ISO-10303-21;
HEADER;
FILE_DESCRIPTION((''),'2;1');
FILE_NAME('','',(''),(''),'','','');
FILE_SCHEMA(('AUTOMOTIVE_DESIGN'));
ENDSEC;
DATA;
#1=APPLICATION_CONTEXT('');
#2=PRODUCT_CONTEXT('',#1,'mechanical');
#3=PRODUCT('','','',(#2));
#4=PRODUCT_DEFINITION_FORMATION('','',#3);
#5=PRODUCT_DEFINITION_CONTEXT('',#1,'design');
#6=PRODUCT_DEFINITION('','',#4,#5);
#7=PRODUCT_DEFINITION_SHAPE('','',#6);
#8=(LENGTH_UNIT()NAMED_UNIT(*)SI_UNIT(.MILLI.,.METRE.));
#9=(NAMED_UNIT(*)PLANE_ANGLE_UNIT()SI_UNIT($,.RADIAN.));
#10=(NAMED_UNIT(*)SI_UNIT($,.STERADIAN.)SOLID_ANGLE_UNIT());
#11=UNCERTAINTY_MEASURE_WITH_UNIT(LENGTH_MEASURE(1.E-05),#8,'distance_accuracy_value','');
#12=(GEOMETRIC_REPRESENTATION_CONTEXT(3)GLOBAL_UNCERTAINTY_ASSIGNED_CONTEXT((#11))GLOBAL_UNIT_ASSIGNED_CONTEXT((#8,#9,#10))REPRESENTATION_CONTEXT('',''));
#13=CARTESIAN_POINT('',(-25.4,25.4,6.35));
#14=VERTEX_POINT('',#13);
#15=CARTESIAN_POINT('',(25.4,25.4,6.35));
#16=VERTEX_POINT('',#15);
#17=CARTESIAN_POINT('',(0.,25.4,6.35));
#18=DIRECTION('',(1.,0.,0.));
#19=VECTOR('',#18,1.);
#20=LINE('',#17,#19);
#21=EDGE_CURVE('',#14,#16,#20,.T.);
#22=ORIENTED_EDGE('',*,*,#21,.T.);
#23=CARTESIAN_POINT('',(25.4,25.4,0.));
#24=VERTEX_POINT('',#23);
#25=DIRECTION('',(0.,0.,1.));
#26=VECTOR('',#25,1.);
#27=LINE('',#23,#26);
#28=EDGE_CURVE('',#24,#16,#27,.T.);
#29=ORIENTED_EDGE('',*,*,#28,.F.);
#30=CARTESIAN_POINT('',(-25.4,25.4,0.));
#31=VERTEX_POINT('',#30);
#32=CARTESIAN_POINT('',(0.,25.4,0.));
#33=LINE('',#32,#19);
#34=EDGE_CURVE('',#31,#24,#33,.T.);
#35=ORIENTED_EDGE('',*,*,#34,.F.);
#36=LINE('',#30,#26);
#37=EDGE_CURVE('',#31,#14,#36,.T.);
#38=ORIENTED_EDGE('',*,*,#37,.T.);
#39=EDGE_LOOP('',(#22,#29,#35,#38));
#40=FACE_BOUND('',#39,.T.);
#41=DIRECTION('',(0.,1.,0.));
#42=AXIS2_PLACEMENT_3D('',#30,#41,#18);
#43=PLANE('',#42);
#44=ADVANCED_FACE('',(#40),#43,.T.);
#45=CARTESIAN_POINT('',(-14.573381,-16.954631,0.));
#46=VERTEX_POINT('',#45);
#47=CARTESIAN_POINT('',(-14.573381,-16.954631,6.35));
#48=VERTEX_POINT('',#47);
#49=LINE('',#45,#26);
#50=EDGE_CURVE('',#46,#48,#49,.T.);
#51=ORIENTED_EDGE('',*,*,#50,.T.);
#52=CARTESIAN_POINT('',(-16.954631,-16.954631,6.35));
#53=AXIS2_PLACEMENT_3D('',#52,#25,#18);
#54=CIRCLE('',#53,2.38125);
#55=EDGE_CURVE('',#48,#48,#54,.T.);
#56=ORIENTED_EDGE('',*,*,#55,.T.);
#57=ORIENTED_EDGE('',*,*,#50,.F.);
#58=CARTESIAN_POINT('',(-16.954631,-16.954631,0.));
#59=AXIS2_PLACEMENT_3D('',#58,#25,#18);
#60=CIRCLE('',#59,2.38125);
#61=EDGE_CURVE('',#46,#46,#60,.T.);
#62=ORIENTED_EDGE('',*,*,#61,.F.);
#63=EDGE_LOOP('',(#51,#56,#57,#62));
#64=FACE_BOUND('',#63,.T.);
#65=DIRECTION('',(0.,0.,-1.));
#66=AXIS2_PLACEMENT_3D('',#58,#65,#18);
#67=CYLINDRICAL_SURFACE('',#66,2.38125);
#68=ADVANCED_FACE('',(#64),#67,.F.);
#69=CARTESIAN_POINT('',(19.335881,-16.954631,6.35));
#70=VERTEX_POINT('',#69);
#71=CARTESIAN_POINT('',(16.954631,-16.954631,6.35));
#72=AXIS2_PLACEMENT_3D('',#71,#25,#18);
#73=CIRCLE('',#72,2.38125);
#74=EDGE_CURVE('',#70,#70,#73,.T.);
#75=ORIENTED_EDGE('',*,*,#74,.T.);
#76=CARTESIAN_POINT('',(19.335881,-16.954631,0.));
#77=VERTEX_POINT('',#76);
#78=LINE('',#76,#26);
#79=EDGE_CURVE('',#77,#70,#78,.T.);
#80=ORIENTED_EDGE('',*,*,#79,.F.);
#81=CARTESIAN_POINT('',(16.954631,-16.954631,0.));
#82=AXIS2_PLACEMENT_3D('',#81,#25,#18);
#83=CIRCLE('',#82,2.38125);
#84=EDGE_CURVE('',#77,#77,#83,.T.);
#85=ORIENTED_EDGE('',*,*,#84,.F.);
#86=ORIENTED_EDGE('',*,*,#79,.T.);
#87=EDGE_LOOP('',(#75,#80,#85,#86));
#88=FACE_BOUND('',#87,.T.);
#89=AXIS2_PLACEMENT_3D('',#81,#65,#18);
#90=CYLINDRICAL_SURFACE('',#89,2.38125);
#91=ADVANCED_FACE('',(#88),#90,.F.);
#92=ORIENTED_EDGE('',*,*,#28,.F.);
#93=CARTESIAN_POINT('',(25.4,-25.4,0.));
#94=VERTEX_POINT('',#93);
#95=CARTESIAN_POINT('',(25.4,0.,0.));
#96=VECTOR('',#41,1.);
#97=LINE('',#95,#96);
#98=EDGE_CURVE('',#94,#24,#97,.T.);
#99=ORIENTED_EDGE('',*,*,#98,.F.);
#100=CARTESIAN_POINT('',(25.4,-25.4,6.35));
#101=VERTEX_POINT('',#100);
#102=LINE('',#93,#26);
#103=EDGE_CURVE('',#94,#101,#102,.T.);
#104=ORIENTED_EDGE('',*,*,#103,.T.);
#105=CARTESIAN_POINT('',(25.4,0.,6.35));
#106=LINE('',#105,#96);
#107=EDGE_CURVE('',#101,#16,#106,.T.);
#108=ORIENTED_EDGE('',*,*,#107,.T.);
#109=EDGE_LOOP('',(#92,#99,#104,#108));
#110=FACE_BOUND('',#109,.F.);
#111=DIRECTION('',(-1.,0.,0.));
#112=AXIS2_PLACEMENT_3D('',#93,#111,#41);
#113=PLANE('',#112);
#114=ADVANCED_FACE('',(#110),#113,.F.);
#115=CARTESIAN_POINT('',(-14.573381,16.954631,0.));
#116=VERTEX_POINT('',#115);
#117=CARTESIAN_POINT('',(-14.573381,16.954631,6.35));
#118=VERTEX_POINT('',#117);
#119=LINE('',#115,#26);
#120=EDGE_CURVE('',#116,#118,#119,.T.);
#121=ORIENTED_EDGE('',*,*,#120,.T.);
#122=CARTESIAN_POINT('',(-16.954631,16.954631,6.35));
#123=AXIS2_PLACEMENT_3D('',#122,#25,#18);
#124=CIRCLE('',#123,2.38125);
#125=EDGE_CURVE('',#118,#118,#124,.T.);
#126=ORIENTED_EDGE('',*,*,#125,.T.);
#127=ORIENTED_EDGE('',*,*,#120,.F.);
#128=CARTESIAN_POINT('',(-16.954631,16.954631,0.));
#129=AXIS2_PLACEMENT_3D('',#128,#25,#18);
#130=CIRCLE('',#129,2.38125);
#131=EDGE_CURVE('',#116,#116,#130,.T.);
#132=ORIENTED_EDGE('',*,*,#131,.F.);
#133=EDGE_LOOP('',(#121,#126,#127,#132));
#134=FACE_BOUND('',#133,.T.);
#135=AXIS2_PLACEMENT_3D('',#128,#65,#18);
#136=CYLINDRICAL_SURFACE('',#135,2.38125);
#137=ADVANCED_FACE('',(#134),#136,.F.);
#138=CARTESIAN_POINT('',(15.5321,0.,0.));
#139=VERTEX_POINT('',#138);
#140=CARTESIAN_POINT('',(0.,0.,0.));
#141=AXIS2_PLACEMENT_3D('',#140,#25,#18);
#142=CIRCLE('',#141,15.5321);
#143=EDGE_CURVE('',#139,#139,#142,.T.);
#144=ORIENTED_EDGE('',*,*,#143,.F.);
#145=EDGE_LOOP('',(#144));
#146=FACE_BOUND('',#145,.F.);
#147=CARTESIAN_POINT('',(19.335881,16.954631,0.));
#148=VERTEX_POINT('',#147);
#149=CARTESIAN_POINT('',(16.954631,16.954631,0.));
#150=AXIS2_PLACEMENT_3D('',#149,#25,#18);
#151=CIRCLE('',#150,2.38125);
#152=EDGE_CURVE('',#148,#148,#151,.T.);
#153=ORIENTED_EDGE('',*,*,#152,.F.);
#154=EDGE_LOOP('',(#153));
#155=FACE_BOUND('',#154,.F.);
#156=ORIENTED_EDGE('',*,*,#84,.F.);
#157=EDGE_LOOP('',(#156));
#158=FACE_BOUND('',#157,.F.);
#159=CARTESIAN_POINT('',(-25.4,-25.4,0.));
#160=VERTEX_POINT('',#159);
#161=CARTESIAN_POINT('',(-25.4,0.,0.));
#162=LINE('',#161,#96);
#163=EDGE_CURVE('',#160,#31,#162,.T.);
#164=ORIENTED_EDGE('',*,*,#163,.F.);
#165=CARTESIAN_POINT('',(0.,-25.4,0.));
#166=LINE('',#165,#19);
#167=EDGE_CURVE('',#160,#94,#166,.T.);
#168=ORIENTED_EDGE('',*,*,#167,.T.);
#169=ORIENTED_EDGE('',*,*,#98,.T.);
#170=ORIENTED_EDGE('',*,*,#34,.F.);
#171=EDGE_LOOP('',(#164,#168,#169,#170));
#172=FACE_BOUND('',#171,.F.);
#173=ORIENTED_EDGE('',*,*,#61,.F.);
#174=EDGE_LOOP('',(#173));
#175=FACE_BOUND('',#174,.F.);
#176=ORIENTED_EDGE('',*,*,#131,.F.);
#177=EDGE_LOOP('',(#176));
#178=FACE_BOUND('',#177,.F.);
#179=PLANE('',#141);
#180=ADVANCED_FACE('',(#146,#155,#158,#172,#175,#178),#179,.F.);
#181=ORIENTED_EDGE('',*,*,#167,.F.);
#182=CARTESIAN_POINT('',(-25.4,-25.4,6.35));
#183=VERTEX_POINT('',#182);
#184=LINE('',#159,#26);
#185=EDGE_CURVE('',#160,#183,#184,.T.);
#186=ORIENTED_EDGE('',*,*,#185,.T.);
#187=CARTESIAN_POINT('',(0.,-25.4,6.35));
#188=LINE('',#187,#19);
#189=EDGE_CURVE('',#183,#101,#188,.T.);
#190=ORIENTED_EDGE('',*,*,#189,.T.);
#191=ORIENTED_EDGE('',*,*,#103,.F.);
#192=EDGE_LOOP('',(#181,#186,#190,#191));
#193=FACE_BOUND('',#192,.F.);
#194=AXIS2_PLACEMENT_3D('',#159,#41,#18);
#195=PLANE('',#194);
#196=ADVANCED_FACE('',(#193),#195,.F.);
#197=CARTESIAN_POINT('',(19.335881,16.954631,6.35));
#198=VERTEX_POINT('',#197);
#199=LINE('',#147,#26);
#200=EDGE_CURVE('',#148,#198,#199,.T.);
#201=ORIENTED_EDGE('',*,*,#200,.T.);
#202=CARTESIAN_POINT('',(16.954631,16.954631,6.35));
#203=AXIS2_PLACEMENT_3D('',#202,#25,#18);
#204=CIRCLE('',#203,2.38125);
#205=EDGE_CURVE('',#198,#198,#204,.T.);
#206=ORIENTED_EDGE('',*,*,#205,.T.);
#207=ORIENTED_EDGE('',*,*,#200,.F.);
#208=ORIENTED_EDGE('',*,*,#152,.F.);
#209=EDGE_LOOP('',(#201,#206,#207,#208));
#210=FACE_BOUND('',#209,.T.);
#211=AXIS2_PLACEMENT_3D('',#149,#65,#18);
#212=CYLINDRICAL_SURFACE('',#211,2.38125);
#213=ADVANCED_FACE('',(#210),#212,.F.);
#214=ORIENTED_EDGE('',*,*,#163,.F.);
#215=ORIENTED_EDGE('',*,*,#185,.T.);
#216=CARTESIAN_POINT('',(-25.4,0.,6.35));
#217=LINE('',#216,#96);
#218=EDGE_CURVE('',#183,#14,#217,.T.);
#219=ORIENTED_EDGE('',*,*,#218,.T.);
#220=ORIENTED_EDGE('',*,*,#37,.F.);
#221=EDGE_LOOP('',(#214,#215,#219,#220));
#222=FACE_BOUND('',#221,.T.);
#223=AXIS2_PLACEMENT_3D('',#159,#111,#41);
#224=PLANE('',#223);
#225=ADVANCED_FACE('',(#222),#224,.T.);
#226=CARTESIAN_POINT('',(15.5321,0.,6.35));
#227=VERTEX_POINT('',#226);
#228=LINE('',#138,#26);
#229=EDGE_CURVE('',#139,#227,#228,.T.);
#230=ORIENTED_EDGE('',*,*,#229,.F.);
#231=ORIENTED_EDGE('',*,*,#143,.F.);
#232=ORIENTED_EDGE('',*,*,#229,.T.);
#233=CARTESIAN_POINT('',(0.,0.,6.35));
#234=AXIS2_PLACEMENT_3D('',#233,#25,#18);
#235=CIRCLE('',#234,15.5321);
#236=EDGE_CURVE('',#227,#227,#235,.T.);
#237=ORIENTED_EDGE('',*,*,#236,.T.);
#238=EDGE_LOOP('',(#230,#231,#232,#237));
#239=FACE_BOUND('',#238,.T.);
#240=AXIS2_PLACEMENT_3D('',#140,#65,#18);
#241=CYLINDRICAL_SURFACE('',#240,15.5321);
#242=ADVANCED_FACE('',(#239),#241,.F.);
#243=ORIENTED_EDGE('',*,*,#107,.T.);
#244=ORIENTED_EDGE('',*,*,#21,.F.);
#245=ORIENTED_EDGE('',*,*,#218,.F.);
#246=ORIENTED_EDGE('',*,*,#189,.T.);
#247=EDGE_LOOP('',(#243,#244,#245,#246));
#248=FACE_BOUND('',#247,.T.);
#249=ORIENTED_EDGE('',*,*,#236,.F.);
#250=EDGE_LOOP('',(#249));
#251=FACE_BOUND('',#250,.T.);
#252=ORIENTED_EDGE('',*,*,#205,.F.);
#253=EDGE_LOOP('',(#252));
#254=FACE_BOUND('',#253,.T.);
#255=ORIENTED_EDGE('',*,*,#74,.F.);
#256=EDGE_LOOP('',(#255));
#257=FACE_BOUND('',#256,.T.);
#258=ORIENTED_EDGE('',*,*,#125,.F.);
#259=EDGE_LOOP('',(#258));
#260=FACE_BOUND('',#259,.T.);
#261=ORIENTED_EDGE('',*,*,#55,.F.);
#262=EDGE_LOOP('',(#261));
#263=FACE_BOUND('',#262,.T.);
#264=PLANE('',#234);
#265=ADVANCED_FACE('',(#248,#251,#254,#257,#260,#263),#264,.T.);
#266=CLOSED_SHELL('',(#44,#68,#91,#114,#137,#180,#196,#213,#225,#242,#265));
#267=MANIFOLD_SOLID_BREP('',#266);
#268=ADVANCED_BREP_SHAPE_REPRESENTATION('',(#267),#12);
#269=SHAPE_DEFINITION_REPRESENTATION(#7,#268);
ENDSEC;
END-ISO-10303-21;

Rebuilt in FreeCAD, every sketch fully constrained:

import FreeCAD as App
import Part
import Sketcher

V = App.Vector
Q = App.Units.Quantity


def add_polygon(sketch, points):
    """Adds a closed chain of lines whose ends are joined by coincident constraints."""
    first, n = sketch.GeometryCount, len(points)
    for a, b in zip(points, points[1:] + points[:1]):
        sketch.addGeometry(Part.LineSegment(App.Vector(*a, 0), App.Vector(*b, 0)), False)
    for i in range(n):
        sketch.addConstraint(Sketcher.Constraint("Coincident", first + i, 2, first + (i + 1) % n, 1))

doc = App.newDocument("Part")
body = doc.addObject("PartDesign::Body", "Body")

# Sketch on XY plane
sketch1 = doc.addObject("Sketcher::SketchObject", "Sketch")
body.addObject(sketch1)
sketch1.AttachmentSupport = (doc.XY_Plane, [""])
sketch1.MapMode = "FlatFace"
add_polygon(sketch1, [(-25.4, 25.4), (-25.4, -25.4), (25.4, -25.4), (25.4, 25.4)])  # lines 0-3
sketch1.addGeometry(Part.Circle(V(-16.954631, -16.954631, 0), V(0, 0, 1), 2.38125), False)  # 4
sketch1.addGeometry(Part.Circle(V(16.954631, -16.954631, 0), V(0, 0, 1), 2.38125), False)  # 5
sketch1.addGeometry(Part.Circle(V(-16.954631, 16.954631, 0), V(0, 0, 1), 2.38125), False)  # 6
sketch1.addGeometry(Part.Circle(V(0, 0, 0), V(0, 0, 1), 15.5321), False)  # 7
sketch1.addGeometry(Part.Circle(V(16.954631, 16.954631, 0), V(0, 0, 1), 2.38125), False)  # 8
sketch1.addConstraint([
    Sketcher.Constraint("Vertical", 0),
    Sketcher.Constraint("Horizontal", 1),
    Sketcher.Constraint("Vertical", 2),
    Sketcher.Constraint("Horizontal", 3),
    Sketcher.Constraint("Coincident", 7, 3, -1, 1),
    Sketcher.Constraint("Equal", 4, 5),
    Sketcher.Constraint("Equal", 5, 6),
    Sketcher.Constraint("Equal", 6, 8),
    Sketcher.Constraint("Symmetric", 5, 3, 6, 3, -1, 1),
    Sketcher.Constraint("Symmetric", 4, 3, 8, 3, -1, 1),
    Sketcher.Constraint("Symmetric", 0, 2, 2, 2, -1, 1),
    Sketcher.Constraint("Symmetric", 4, 3, 5, 3, -2),
    Sketcher.Constraint("Equal", 3, 0),
    Sketcher.Constraint("DistanceX", 1, 1, 1, 2, Q("2 in")),
    Sketcher.Constraint("Diameter", 4, Q("0.1875 in")),
    Sketcher.Constraint("Diameter", 7, Q("1.223 in")),
    Sketcher.Constraint("DistanceX", 4, 3, -1, 1, 16.954631),
    Sketcher.Constraint("DistanceY", 4, 3, -1, 1, 16.954631),
])
pad1 = doc.addObject("PartDesign::Pad", "Pad")
body.addObject(pad1)
pad1.Profile = sketch1
pad1.Length = Q("0.25 in")

doc.recompute()
